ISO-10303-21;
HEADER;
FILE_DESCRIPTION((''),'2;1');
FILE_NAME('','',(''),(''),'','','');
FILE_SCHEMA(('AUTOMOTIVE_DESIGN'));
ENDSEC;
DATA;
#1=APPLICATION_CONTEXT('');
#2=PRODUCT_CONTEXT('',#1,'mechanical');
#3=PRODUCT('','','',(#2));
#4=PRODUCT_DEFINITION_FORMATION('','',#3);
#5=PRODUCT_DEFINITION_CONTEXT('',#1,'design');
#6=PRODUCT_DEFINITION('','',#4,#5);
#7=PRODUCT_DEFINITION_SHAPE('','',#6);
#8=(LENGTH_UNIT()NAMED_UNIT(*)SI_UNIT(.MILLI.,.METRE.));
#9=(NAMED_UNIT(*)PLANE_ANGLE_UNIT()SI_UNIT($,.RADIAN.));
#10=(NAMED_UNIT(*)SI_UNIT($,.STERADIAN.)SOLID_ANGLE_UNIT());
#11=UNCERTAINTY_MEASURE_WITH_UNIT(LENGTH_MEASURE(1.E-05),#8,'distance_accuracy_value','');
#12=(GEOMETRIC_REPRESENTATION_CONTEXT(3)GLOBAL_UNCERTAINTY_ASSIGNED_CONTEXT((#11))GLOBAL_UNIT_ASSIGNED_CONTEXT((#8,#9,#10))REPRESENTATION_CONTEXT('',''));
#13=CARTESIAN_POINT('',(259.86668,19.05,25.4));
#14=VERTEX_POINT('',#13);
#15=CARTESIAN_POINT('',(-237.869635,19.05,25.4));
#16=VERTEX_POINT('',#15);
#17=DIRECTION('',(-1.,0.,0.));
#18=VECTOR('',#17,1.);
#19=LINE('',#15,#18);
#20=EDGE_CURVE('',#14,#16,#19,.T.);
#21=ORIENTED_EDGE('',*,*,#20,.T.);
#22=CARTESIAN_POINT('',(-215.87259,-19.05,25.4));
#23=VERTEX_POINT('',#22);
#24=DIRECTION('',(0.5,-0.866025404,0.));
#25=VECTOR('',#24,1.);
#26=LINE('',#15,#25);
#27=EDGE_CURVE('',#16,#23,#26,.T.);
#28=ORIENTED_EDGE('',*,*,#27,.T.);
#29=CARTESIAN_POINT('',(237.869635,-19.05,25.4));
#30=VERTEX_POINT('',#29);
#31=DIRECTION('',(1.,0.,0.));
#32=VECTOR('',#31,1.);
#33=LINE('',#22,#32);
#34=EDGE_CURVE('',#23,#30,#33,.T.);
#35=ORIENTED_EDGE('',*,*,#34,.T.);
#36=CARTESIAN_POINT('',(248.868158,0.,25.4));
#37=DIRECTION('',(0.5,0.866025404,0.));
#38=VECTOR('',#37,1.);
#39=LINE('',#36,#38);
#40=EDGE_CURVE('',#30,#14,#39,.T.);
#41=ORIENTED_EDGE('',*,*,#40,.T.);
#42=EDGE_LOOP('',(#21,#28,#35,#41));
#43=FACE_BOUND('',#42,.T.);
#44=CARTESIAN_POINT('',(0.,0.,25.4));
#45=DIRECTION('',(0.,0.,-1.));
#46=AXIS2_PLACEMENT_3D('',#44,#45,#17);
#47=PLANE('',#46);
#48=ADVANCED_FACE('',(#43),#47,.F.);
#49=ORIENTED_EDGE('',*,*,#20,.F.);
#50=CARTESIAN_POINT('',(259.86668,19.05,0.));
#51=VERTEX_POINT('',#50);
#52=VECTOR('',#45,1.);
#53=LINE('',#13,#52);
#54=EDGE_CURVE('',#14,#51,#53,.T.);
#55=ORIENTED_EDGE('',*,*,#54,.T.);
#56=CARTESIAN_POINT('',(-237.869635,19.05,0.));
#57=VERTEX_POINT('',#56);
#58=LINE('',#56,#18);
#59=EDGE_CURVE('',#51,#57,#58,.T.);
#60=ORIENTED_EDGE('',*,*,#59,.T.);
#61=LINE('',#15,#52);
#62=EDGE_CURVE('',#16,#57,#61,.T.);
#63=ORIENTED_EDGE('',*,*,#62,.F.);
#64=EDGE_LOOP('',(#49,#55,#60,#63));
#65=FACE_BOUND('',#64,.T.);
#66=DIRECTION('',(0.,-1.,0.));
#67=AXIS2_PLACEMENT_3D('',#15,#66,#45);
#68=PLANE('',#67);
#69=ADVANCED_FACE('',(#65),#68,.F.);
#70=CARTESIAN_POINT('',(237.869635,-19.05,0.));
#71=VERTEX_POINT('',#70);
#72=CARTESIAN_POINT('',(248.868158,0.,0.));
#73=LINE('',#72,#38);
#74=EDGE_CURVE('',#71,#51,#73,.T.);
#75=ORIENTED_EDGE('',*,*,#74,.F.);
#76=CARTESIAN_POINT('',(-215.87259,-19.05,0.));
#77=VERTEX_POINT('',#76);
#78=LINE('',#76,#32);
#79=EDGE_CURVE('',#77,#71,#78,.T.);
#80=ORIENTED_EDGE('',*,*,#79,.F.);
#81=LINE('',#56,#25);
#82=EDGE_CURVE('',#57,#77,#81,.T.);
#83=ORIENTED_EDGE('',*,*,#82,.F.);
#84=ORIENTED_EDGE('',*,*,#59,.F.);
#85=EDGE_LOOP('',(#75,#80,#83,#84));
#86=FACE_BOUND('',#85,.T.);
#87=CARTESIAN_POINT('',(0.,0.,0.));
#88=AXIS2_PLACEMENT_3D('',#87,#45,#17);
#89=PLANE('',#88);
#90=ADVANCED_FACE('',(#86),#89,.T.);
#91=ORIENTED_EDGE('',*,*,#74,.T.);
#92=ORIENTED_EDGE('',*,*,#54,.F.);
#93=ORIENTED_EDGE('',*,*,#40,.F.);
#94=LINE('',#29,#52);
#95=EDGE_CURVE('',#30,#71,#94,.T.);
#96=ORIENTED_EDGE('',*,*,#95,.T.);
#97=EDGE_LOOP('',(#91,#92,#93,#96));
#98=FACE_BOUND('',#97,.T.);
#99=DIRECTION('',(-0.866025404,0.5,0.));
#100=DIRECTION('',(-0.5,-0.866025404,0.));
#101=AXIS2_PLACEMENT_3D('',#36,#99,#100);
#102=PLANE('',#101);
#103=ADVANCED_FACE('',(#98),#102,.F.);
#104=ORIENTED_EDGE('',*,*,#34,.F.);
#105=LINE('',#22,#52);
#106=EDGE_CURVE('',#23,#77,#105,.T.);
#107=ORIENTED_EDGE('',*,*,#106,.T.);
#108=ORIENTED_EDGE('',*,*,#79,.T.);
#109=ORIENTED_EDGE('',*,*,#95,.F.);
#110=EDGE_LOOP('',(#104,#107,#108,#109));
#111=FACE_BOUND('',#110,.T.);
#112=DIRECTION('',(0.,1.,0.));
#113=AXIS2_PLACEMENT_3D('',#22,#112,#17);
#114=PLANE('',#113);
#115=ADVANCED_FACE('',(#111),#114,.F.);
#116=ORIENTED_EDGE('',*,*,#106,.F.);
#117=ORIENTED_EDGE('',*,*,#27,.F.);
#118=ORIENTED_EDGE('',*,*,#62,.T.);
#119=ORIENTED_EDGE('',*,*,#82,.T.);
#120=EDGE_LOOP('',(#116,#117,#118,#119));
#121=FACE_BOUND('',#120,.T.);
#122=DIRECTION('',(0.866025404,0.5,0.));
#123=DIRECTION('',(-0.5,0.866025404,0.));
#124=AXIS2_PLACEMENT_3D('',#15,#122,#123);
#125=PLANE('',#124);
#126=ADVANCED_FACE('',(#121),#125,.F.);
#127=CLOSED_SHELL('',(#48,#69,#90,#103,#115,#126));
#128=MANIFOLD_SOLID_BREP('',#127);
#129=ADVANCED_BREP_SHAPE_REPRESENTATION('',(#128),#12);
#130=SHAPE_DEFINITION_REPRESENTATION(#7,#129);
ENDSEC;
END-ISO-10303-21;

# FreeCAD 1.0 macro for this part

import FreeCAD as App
import Part
import Sketcher
Q = App.Units.Quantity


def add_polygon(sketch, points):
    """Adds a closed chain of lines whose ends are joined by coincident constraints."""
    first, n = sketch.GeometryCount, len(points)
    for a, b in zip(points, points[1:] + points[:1]):
        sketch.addGeometry(Part.LineSegment(App.Vector(*a, 0), App.Vector(*b, 0)), False)
    for i in range(n):
        sketch.addConstraint(Sketcher.Constraint("Coincident", first + i, 2, first + (i + 1) % n, 1))

doc = App.newDocument("Part")
body = doc.addObject("PartDesign::Body", "Body")

# Sketch on XY plane
sketch1 = body.newObject("Sketcher::SketchObject", "Sketch")
sketch1.AttachmentSupport = (doc.getObject("XY_Plane"), [""])
sketch1.MapMode = "FlatFace"
add_polygon(sketch1, [(237.869635, -19.05), (259.86668, 19.05), (-237.869635, 19.05), (-215.87259, -19.05)])  # lines 0-3
sketch1.addConstraint(Sketcher.Constraint("Horizontal", 1))
sketch1.addConstraint(Sketcher.Constraint("Horizontal", 3))
sketch1.addConstraint(Sketcher.Constraint("Symmetric", 1, 2, 3, 2, -1, 1))
sketch1.addConstraint(Sketcher.Constraint("Equal", 0, 2))
sketch1.addConstraint(Sketcher.Constraint("Angle", 0, Q("60 deg")))
sketch1.addConstraint(Sketcher.Constraint("DistanceY", 2, 2, 1, 2, Q("1.5 in")))
sketch1.addConstraint(Sketcher.Constraint("DistanceX", 1, 2, 1, 1, 497.736316))
pad1 = body.newObject("PartDesign::Pad", "Pad")
pad1.Profile = sketch1
pad1.Length = Q("1 in")

doc.recompute()
